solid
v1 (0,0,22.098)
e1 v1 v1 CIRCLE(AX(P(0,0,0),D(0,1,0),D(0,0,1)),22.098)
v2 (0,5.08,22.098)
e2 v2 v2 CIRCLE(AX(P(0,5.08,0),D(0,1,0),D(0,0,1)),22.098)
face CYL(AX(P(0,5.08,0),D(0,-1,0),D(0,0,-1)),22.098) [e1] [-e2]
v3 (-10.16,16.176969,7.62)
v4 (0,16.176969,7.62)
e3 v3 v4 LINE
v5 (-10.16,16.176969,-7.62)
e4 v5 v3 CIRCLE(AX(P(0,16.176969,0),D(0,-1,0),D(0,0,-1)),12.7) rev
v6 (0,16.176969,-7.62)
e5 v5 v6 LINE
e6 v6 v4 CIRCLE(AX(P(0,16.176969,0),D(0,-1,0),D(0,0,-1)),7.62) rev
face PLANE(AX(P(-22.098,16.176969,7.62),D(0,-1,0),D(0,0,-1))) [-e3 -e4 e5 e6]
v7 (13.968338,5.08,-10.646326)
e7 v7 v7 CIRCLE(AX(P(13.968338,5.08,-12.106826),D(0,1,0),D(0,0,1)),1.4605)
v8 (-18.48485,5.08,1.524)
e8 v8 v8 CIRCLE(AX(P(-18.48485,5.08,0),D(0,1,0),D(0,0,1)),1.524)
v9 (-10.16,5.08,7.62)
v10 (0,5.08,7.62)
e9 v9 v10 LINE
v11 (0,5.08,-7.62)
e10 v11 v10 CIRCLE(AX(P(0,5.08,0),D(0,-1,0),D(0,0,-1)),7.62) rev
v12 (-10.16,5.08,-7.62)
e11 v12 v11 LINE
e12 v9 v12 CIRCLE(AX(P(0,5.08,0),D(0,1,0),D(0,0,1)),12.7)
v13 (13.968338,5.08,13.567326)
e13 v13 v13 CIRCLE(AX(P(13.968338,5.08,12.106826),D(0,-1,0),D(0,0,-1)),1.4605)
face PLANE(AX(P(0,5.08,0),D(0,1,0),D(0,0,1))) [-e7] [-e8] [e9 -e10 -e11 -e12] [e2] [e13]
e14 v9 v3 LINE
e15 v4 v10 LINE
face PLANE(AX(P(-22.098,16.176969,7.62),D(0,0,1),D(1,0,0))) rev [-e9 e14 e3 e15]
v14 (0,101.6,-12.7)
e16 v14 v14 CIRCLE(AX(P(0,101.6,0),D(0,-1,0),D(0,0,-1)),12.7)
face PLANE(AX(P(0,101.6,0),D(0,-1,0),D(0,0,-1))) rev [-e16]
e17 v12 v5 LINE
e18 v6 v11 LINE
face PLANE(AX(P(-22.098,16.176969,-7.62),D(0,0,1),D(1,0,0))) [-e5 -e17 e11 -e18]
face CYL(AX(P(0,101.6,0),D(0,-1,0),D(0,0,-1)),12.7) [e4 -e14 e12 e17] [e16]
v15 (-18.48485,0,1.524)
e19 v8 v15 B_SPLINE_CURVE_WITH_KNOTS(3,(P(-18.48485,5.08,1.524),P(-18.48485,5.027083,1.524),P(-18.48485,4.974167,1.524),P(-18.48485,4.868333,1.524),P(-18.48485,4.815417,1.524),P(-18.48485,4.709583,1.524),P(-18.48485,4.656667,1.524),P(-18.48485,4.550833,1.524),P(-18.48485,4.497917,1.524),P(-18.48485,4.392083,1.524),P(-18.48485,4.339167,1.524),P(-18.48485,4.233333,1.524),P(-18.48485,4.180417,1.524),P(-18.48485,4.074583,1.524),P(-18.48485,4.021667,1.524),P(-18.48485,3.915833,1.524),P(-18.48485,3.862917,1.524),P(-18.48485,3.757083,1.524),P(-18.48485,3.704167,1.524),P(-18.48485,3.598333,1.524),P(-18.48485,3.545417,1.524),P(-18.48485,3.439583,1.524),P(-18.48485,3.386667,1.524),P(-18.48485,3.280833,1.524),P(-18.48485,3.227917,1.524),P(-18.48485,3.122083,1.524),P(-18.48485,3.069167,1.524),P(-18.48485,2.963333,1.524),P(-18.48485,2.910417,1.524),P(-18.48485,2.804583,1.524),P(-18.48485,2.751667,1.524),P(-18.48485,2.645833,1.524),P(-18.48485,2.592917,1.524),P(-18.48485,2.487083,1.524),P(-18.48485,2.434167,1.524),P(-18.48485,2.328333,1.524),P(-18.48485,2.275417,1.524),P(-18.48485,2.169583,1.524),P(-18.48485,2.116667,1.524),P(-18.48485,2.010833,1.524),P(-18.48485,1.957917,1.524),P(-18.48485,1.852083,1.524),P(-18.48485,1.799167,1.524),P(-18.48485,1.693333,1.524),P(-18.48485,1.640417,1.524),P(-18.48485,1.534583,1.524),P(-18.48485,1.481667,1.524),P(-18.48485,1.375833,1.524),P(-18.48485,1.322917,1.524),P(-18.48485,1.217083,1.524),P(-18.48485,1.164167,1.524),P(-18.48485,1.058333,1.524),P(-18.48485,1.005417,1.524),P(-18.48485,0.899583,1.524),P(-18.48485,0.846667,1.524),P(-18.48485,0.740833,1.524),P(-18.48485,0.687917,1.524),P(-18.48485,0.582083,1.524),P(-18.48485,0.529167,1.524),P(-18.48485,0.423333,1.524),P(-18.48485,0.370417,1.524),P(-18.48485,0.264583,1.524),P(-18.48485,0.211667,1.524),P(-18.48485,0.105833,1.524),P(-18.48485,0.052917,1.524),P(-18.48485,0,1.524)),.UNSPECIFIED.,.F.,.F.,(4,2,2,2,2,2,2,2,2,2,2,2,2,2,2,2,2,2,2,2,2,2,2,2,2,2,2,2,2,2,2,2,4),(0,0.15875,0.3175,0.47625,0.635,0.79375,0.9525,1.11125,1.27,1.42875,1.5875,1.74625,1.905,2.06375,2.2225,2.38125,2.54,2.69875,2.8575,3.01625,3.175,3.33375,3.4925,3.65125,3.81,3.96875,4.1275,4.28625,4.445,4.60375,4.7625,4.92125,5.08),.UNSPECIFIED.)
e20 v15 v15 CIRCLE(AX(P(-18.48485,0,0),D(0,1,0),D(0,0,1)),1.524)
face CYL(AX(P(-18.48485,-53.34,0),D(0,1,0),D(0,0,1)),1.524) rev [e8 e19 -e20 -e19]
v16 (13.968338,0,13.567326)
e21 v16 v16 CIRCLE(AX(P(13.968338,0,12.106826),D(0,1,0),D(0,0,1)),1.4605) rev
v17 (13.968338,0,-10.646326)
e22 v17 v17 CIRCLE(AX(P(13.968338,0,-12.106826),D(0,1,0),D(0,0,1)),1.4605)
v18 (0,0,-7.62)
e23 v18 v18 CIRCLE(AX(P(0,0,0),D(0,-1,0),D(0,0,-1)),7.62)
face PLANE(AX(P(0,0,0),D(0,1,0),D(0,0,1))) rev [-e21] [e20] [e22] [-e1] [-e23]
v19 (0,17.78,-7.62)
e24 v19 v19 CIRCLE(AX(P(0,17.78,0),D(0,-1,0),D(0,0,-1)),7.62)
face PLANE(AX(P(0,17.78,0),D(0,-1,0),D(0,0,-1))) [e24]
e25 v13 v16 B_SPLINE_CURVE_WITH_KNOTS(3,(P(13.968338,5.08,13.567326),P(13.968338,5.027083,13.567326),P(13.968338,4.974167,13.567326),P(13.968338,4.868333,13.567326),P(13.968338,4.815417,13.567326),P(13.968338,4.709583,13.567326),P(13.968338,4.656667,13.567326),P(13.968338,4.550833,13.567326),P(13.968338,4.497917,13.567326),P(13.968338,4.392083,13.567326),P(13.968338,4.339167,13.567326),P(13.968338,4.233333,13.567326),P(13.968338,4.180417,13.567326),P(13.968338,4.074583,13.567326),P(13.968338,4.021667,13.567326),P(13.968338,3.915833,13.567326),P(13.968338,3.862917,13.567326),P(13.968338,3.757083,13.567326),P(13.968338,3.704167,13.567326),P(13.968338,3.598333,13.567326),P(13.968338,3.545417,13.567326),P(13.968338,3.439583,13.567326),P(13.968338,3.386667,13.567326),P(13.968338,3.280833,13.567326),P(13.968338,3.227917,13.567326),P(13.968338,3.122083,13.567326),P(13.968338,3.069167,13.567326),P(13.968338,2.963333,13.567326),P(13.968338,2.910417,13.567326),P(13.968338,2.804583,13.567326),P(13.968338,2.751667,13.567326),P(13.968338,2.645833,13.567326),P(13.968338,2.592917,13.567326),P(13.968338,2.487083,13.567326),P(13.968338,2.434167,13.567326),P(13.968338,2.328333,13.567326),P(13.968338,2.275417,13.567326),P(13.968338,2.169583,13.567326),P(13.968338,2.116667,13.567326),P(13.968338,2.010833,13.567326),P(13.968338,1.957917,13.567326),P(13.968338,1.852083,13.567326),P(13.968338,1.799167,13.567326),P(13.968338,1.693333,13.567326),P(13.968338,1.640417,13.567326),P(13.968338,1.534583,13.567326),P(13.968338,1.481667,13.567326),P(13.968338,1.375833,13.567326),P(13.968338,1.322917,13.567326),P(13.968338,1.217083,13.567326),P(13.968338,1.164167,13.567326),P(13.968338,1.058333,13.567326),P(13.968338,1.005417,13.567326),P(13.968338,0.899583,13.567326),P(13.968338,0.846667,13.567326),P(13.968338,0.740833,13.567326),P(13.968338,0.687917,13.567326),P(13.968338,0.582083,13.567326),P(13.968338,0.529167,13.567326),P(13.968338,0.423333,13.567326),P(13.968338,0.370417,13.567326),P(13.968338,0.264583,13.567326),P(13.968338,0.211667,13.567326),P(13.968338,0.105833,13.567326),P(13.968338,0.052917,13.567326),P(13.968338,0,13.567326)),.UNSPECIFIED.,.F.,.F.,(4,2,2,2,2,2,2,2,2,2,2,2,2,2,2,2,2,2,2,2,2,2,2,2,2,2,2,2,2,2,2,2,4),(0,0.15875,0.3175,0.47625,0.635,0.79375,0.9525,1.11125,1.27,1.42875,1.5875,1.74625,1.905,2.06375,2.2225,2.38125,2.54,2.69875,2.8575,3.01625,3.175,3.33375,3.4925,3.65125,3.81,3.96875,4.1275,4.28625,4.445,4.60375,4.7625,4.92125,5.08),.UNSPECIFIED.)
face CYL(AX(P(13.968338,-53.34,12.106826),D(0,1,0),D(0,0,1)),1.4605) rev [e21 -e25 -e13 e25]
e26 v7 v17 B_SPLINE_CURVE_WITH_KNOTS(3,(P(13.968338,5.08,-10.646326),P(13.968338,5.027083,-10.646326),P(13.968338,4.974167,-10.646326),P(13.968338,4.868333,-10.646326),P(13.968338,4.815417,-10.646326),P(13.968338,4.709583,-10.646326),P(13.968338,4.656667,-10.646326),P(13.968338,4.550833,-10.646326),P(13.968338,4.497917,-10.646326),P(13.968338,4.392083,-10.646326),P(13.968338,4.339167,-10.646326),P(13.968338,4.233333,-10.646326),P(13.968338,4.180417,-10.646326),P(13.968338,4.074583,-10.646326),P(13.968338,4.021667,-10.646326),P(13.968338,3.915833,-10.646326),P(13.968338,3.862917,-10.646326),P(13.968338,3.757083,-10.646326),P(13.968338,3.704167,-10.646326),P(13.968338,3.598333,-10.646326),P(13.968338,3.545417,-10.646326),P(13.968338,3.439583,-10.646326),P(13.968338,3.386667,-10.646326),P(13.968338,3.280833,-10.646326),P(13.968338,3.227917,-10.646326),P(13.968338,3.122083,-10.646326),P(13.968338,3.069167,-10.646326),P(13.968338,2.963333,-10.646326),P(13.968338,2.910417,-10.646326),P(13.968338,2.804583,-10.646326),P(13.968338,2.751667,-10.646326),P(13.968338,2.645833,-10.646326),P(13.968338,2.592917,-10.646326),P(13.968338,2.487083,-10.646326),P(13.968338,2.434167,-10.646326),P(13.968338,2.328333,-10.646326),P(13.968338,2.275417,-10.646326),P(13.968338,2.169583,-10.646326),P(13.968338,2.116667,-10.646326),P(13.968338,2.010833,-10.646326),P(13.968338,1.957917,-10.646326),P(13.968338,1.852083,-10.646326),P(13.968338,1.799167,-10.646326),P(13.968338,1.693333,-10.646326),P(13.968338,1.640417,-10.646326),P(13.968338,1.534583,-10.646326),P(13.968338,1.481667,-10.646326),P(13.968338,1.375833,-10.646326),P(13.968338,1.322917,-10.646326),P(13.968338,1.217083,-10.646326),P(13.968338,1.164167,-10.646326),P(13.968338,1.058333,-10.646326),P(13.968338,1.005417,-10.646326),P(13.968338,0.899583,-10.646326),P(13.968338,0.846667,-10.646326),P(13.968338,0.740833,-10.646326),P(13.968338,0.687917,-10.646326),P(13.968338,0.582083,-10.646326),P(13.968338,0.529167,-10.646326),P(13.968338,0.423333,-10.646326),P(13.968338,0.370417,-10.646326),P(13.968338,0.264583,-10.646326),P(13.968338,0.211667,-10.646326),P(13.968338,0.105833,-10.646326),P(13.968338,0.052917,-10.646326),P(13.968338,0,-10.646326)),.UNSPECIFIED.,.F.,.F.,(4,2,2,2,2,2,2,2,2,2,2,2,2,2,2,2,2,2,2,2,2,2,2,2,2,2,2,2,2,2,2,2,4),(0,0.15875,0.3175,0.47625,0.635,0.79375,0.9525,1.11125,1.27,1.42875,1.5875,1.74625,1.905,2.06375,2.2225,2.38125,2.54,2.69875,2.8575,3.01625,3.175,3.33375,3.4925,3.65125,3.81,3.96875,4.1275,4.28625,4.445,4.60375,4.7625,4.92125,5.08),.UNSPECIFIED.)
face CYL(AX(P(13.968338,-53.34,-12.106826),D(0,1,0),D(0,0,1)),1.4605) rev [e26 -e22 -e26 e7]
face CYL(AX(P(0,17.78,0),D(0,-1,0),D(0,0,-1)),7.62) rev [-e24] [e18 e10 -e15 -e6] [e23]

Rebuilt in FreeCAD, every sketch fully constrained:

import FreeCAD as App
import Part
import Sketcher
from FreeCAD import Vector
Q = App.Units.Quantity


def add_polygon(sketch, points):
    """Adds a closed chain of lines whose ends are joined by coincident constraints."""
    first, n = sketch.GeometryCount, len(points)
    for a, b in zip(points, points[1:] + points[:1]):
        sketch.addGeometry(Part.LineSegment(App.Vector(*a, 0), App.Vector(*b, 0)), False)
    for i in range(n):
        sketch.addConstraint(Sketcher.Constraint("Coincident", first + i, 2, first + (i + 1) % n, 1))

doc = App.newDocument("Part")
body = doc.addObject("PartDesign::Body", "Body")

sketch1 = doc.addObject("Sketcher::SketchObject", "Sketch")
body.addObject(sketch1)
sketch1.AttachmentSupport = (doc.XZ_Plane, [""])
sketch1.MapMode = "FlatFace"
sketch1.addGeometry(Part.Circle(Vector(0, 0, 0), Vector(0, 0, 1), 22), False)
sketch1.addConstraint([
    Sketcher.Constraint("Coincident", 0, 3, -1, 1),
    Sketcher.Constraint("Diameter", 0, Q("1.74 in")),
])
pad1 = doc.addObject("PartDesign::Pad", "Pad")
body.addObject(pad1)
pad1.Profile = sketch1
pad1.Length = Q("0.2 in")
pad1.Reversed = True

sketch2 = doc.addObject("Sketcher::SketchObject", "Sketch001")
body.addObject(sketch2)
sketch2.AttachmentSupport = (doc.XZ_Plane, [""])
sketch2.MapMode = "FlatFace"
sketch2.AttachmentOffset = App.Placement(Vector(0, 0, -0.2 * 25.4), App.Rotation())
sketch2.addGeometry([
    Part.Circle(Vector(14, -12.1, 0), Vector(0, 0, 1), 1.5),
    Part.Circle(Vector(14, 12.1, 0), Vector(0, 0, 1), 1.5),
    Part.Circle(Vector(-18.5, 0, 0), Vector(0, 0, 1), 1.5),
], False)
sketch2.addConstraint([
    Sketcher.Constraint("Equal", 0, 1),
    Sketcher.Constraint("Symmetric", 0, 3, 1, 3, -1),
    Sketcher.Constraint("PointOnObject", 2, 3, -1),
    Sketcher.Constraint("Diameter", 2, Q("0.12 in")),
    Sketcher.Constraint("Diameter", 0, Q("0.115 in")),
    Sketcher.Constraint("DistanceX", 2, 3, -1, 1, Q("18.48485 mm")),
    Sketcher.Constraint("DistanceY", 0, 3, 1, 3, Q("24.213651 mm")),
    Sketcher.Constraint("DistanceX", -1, 1, 0, 3, Q("13.968338 mm")),
])
pocket1 = doc.addObject("PartDesign::Pocket", "Pocket")
body.addObject(pocket1)
pocket1.Profile = sketch2
pocket1.Length = Q("2.3 in")
pocket1.Reversed = True

sketch3 = doc.addObject("Sketcher::SketchObject", "Sketch002")
body.addObject(sketch3)
sketch3.AttachmentSupport = (doc.XZ_Plane, [""])
sketch3.MapMode = "FlatFace"
sketch3.addGeometry(Part.Circle(Vector(0, 0, 0), Vector(0, 0, 1), 13), False)
sketch3.addConstraint([
    Sketcher.Constraint("Coincident", 0, 3, -1, 1),
    Sketcher.Constraint("Diameter", 0, Q("1 in")),
])
pocket2 = doc.addObject("PartDesign::Pocket", "Pocket001")
body.addObject(pocket2)
pocket2.Profile = sketch3
pocket2.Length = Q("1.15 in")

sketch4 = doc.addObject("Sketcher::SketchObject", "Sketch003")
body.addObject(sketch4)
sketch4.AttachmentSupport = (doc.XZ_Plane, [""])
sketch4.MapMode = "FlatFace"
sketch4.addGeometry(Part.Circle(Vector(0, 0, 0), Vector(0, 0, 1), 13), False)
sketch4.addConstraint([
    Sketcher.Constraint("Coincident", 0, 3, -1, 1),
    Sketcher.Constraint("Diameter", 0, Q("1 in")),
])
pad2 = doc.addObject("PartDesign::Pad", "Pad001")
body.addObject(pad2)
pad2.Profile = sketch4
pad2.Length = Q("4 in")
pad2.Reversed = True

sketch5 = doc.addObject("Sketcher::SketchObject", "Sketch004")
body.addObject(sketch5)
sketch5.AttachmentSupport = (doc.XZ_Plane, [""])
sketch5.MapMode = "FlatFace"
sketch5.addGeometry(Part.Circle(Vector(0, 0, 0), Vector(0, 0, 1), 8), False)
sketch5.addConstraint([
    Sketcher.Constraint("Coincident", 0, 3, -1, 1),
    Sketcher.Constraint("Diameter", 0, Q("0.6 in")),
])
pocket3 = doc.addObject("PartDesign::Pocket", "Pocket002")
body.addObject(pocket3)
pocket3.Profile = sketch5
pocket3.Length = Q("0.7 in")

sketch6 = doc.addObject("Sketcher::SketchObject", "Sketch005")
body.addObject(sketch6)
sketch6.AttachmentSupport = (doc.YZ_Plane, [""])
sketch6.MapMode = "FlatFace"
add_polygon(sketch6, [(16, 8), (5, 8), (5, -8), (16, -8)])
sketch6.addConstraint([
    Sketcher.Constraint("Horizontal", 0),
    Sketcher.Constraint("Vertical", 1),
    Sketcher.Constraint("Horizontal", 2),
    Sketcher.Constraint("Vertical", 3),
    Sketcher.Constraint("DistanceY", 1, 2, 1, 1, Q("0.6 in")),
    Sketcher.Constraint("DistanceX", -1, 1, 0, 2, Q("0.2 in")),
    Sketcher.Constraint("DistanceY", -1, 1, 0, 2, Q("0.3 in")),
    Sketcher.Constraint("DistanceX", 0, 2, 0, 1, Q("11.096969 mm")),
])
pocket4 = doc.addObject("PartDesign::Pocket", "Pocket003")
body.addObject(pocket4)
pocket4.Profile = sketch6
pocket4.Type = "ThroughAll"

doc.recompute()
